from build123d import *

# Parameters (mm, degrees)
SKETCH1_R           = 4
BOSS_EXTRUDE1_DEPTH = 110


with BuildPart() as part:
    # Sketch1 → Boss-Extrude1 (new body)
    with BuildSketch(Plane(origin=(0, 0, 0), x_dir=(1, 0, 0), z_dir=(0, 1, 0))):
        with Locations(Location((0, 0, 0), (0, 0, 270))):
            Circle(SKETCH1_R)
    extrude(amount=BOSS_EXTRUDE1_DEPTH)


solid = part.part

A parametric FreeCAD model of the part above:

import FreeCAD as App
import Part
import Sketcher
from FreeCAD import Vector
Q = App.Units.Quantity

doc = App.newDocument("Part")
params = doc.addObject("Spreadsheet::Sheet", "Params")
for row, (alias, value) in enumerate([
    ("sketch1_diameter", "8 mm"),
    ("pad1_length", "110 mm"),
], start=1):
    params.set(f"A{row}", alias)
    params.set(f"B{row}", "=" + value)
    params.setAlias(f"B{row}", alias)

body = doc.addObject("PartDesign::Body", "Body")

# Sketch on XZ plane
sketch1 = doc.addObject("Sketcher::SketchObject", "Sketch")
body.addObject(sketch1)
sketch1.AttachmentSupport = (doc.XZ_Plane, [""])
sketch1.MapMode = "FlatFace"
sketch1.addGeometry(Part.Circle(Vector(0, 0, 0), Vector(0, 0, 1), 4), False)
sketch1.addConstraint([
    Sketcher.Constraint("Coincident", 0, 3, -1, 1),
    Sketcher.Constraint("Diameter", 0, Q("8 mm")),
])
sketch1.setExpression("Constraints[1]", "Params.sketch1_diameter")
pad1 = doc.addObject("PartDesign::Pad", "Pad")
body.addObject(pad1)
pad1.Profile = sketch1
pad1.setExpression("Length", "Params.pad1_length")
pad1.Reversed = True

doc.recompute()
